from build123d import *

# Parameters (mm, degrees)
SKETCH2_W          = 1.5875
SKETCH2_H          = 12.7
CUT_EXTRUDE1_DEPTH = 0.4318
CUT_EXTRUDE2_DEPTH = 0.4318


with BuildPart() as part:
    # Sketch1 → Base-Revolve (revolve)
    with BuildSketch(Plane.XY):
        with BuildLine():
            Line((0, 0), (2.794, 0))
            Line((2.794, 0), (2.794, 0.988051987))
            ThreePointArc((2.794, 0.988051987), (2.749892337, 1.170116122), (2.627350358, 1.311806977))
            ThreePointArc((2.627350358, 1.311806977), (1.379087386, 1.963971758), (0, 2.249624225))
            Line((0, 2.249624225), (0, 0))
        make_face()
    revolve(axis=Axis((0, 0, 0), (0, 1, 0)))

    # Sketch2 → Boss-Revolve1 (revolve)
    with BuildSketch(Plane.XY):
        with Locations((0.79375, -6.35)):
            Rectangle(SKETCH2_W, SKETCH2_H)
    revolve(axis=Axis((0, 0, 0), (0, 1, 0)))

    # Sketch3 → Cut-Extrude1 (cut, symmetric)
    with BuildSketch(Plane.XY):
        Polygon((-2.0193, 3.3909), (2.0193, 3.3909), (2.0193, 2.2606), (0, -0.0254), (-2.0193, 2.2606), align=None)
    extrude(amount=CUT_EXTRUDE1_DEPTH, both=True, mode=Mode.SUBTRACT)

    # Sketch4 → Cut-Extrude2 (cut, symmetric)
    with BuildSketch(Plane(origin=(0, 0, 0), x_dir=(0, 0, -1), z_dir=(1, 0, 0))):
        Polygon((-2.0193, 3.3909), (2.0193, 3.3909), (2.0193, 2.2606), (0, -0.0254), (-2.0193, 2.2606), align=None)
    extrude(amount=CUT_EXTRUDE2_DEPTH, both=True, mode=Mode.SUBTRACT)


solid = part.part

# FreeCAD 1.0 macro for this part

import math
import FreeCAD as App
import Part
import Sketcher
from FreeCAD import Vector
Q = App.Units.Quantity


def add_polygon(sketch, points):
    """Adds a closed chain of lines whose ends are joined by coincident constraints."""
    first, n = sketch.GeometryCount, len(points)
    for a, b in zip(points, points[1:] + points[:1]):
        sketch.addGeometry(Part.LineSegment(App.Vector(*a, 0), App.Vector(*b, 0)), False)
    for i in range(n):
        sketch.addConstraint(Sketcher.Constraint("Coincident", first + i, 2, first + (i + 1) % n, 1))

doc = App.newDocument("Part")
body = doc.addObject("PartDesign::Body", "Body")

sketch1 = doc.addObject("Sketcher::SketchObject", "Sketch")
body.addObject(sketch1)
sketch1.AttachmentSupport = (doc.XY_Plane, [""])
sketch1.MapMode = "FlatFace"
sketch1.addGeometry([
    Part.LineSegment(Vector(0, 0, 0), Vector(2.79, 0, 0)),
    Part.LineSegment(Vector(2.79, 0, 0), Vector(2.79, 0.99, 0)),
    Part.ArcOfCircle(Part.Circle(Vector(2.4, 0.99, 0), Vector(0, 0, 1), 0.4), math.radians(0), math.radians(54)),
    Part.ArcOfCircle(Part.Circle(Vector(-0.33, -2.84, 0), Vector(0, 0, 1), 5.1), math.radians(54), math.radians(86)),
    Part.LineSegment(Vector(0, 2.25, 0), Vector(0, 0, 0)),
], False)
sketch1.addConstraint([
    Sketcher.Constraint("Coincident", 0, 2, 1, 1),
    Sketcher.Constraint("Tangent", 1, 2, 2, 1),
    Sketcher.Constraint("Tangent", 2, 2, 3, 1),
    Sketcher.Constraint("Coincident", 3, 2, 4, 1),
    Sketcher.Constraint("Coincident", 4, 2, 0, 1),
    Sketcher.Constraint("Horizontal", 0),
    Sketcher.Constraint("Vertical", 1),
    Sketcher.Constraint("Vertical", 4),
    Sketcher.Constraint("Coincident", 4, 2, -1, 1),
    Sketcher.Constraint("DistanceX", 0, 1, 0, 2, Q("0.11 in")),
    Sketcher.Constraint("Radius", 2, Q("0.397809 mm")),
    Sketcher.Constraint("Radius", 3, Q("5.096809 mm")),
    Sketcher.Constraint("DistanceX", 3, 3, 2, 3, Q("0.1075 in")),
    Sketcher.Constraint("DistanceY", 1, 1, 1, 2, Q("0.988052 mm")),
])
revolution = doc.addObject("PartDesign::Revolution", "Revolution")
body.addObject(revolution)
revolution.Profile = sketch1
revolution.ReferenceAxis = (sketch1, ["V_Axis"])
revolution.Angle = 360

sketch2 = doc.addObject("Sketcher::SketchObject", "Sketch001")
body.addObject(sketch2)
sketch2.AttachmentSupport = (doc.XY_Plane, [""])
sketch2.MapMode = "FlatFace"
add_polygon(sketch2, [(0, 0), (0, -12.7), (1.6, -12.7), (1.6, 0)])
sketch2.addConstraint([
    Sketcher.Constraint("Vertical", 0),
    Sketcher.Constraint("Horizontal", 1),
    Sketcher.Constraint("Vertical", 2),
    Sketcher.Constraint("Horizontal", 3),
    Sketcher.Constraint("Coincident", 3, 2, -1, 1),
    Sketcher.Constraint("DistanceY", 0, 2, 0, 1, Q("0.5 in")),
    Sketcher.Constraint("DistanceX", 1, 1, 1, 2, Q("0.0625 in")),
])
revolution2 = doc.addObject("PartDesign::Revolution", "Revolution001")
body.addObject(revolution2)
revolution2.Profile = sketch2
revolution2.ReferenceAxis = (sketch2, ["V_Axis"])
revolution2.Angle = 360

sketch3 = doc.addObject("Sketcher::SketchObject", "Sketch002")
body.addObject(sketch3)
sketch3.AttachmentSupport = (doc.XY_Plane, [""])
sketch3.MapMode = "FlatFace"
add_polygon(sketch3, [(2, 3.4), (-2, 3.4), (-2, 2.3), (0, 0), (2, 2.3)])
sketch3.addConstraint([
    Sketcher.Constraint("Horizontal", 0),
    Sketcher.Constraint("Vertical", 1),
    Sketcher.Constraint("Vertical", 4),
    Sketcher.Constraint("Symmetric", 1, 2, 3, 2, -2),
    Sketcher.Constraint("PointOnObject", 2, 2, -2),
    Sketcher.Constraint("DistanceX", 0, 2, 0, 1, Q("0.159 in")),
    Sketcher.Constraint("DistanceY", 2, 2, 1, 2, Q("0.09 in")),
    Sketcher.Constraint("DistanceY", 1, 2, 1, 1, Q("0.0445 in")),
    Sketcher.Constraint("DistanceY", -1, 1, 1, 2, Q("0.089 in")),
])
pocket1 = doc.addObject("PartDesign::Pocket", "Pocket")
body.addObject(pocket1)
pocket1.Profile = sketch3
pocket1.Length = Q("0.034 in")
pocket1.Midplane = True

sketch4 = doc.addObject("Sketcher::SketchObject", "Sketch003")
body.addObject(sketch4)
sketch4.AttachmentSupport = (doc.YZ_Plane, [""])
sketch4.MapMode = "FlatFace"
add_polygon(sketch4, [(3.4, -2), (3.4, 2), (2.3, 2), (0, 0), (2.3, -2)])
sketch4.addConstraint([
    Sketcher.Constraint("Vertical", 0),
    Sketcher.Constraint("Horizontal", 1),
    Sketcher.Constraint("Horizontal", 4),
    Sketcher.Constraint("Symmetric", 1, 2, 3, 2, -1),
    Sketcher.Constraint("PointOnObject", 2, 2, -1),
    Sketcher.Constraint("DistanceY", 0, 1, 0, 2, Q("0.159 in")),
    Sketcher.Constraint("DistanceX", 2, 2, 1, 2, Q("0.09 in")),
    Sketcher.Constraint("DistanceX", 1, 2, 1, 1, Q("0.0445 in")),
    Sketcher.Constraint("DistanceX", -1, 1, 1, 2, Q("0.089 in")),
])
pocket2 = doc.addObject("PartDesign::Pocket", "Pocket001")
body.addObject(pocket2)
pocket2.Profile = sketch4
pocket2.Length = Q("0.034 in")
pocket2.Midplane = True

doc.recompute()
